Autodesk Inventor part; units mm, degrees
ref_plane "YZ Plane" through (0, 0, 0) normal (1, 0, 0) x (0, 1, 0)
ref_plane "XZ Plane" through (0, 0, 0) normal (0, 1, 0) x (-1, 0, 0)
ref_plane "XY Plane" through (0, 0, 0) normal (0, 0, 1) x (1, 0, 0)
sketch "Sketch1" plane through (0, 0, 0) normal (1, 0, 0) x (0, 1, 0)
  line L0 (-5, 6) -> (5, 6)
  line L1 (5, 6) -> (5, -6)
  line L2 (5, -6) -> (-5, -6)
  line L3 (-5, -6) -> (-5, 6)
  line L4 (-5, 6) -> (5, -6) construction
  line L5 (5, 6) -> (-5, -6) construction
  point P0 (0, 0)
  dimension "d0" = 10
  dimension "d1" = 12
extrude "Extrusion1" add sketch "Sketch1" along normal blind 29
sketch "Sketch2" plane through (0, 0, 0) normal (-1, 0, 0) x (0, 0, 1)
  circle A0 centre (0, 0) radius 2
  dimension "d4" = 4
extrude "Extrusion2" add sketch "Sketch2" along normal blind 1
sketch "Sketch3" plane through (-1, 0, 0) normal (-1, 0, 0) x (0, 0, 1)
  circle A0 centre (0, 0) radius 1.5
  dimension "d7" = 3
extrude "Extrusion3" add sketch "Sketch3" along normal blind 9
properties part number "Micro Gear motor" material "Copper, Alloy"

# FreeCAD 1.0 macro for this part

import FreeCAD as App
import Part
import Sketcher

V = App.Vector


def add_polygon(sketch, points):
    """Adds a closed chain of lines whose ends are joined by coincident constraints."""
    first, n = sketch.GeometryCount, len(points)
    for a, b in zip(points, points[1:] + points[:1]):
        sketch.addGeometry(Part.LineSegment(App.Vector(*a, 0), App.Vector(*b, 0)), False)
    for i in range(n):
        sketch.addConstraint(Sketcher.Constraint("Coincident", first + i, 2, first + (i + 1) % n, 1))

doc = App.newDocument("Part")
body = doc.addObject("PartDesign::Body", "Body")

# Sketch on YZ plane
sketch1 = doc.addObject("Sketcher::SketchObject", "Sketch")
body.addObject(sketch1)
sketch1.AttachmentSupport = (doc.YZ_Plane, [""])
sketch1.MapMode = "FlatFace"
add_polygon(sketch1, [(5, 6), (-5, 6), (-5, -6), (5, -6)])  # lines 0-3
sketch1.addConstraint([
    Sketcher.Constraint("Horizontal", 0),
    Sketcher.Constraint("Vertical", 1),
    Sketcher.Constraint("Horizontal", 2),
    Sketcher.Constraint("Vertical", 3),
    Sketcher.Constraint("Symmetric", 0, 2, 2, 2, -1, 1),
    Sketcher.Constraint("DistanceX", 0, 2, 0, 1, 10.0),
    Sketcher.Constraint("DistanceY", 1, 2, 1, 1, 12.0),
])
pad1 = doc.addObject("PartDesign::Pad", "Pad")
body.addObject(pad1)
pad1.Profile = sketch1
pad1.Length = 29

# Sketch on YZ plane
sketch2 = doc.addObject("Sketcher::SketchObject", "Sketch001")
body.addObject(sketch2)
sketch2.AttachmentSupport = (doc.YZ_Plane, [""])
sketch2.MapMode = "FlatFace"
sketch2.addGeometry(Part.Circle(V(0, 0, 0), V(0, 0, 1), 2), False)
sketch2.addConstraint([
    Sketcher.Constraint("Coincident", 0, 3, -1, 1),
    Sketcher.Constraint("Diameter", 0, 4.0),
])
pad2 = doc.addObject("PartDesign::Pad", "Pad001")
body.addObject(pad2)
pad2.Profile = sketch2
pad2.Length = 1
pad2.Reversed = True

# Sketch on YZ plane
sketch3 = doc.addObject("Sketcher::SketchObject", "Sketch002")
body.addObject(sketch3)
sketch3.AttachmentSupport = (doc.YZ_Plane, [""])
sketch3.MapMode = "FlatFace"
sketch3.AttachmentOffset = App.Placement(V(0, 0, -1), App.Rotation())
sketch3.addGeometry(Part.Circle(V(0, 0, 0), V(0, 0, 1), 1.5), False)
sketch3.addConstraint([
    Sketcher.Constraint("Coincident", 0, 3, -1, 1),
    Sketcher.Constraint("Diameter", 0, 3.0),
])
pad3 = doc.addObject("PartDesign::Pad", "Pad002")
body.addObject(pad3)
pad3.Profile = sketch3
pad3.Length = 9
pad3.Reversed = True

doc.recompute()
